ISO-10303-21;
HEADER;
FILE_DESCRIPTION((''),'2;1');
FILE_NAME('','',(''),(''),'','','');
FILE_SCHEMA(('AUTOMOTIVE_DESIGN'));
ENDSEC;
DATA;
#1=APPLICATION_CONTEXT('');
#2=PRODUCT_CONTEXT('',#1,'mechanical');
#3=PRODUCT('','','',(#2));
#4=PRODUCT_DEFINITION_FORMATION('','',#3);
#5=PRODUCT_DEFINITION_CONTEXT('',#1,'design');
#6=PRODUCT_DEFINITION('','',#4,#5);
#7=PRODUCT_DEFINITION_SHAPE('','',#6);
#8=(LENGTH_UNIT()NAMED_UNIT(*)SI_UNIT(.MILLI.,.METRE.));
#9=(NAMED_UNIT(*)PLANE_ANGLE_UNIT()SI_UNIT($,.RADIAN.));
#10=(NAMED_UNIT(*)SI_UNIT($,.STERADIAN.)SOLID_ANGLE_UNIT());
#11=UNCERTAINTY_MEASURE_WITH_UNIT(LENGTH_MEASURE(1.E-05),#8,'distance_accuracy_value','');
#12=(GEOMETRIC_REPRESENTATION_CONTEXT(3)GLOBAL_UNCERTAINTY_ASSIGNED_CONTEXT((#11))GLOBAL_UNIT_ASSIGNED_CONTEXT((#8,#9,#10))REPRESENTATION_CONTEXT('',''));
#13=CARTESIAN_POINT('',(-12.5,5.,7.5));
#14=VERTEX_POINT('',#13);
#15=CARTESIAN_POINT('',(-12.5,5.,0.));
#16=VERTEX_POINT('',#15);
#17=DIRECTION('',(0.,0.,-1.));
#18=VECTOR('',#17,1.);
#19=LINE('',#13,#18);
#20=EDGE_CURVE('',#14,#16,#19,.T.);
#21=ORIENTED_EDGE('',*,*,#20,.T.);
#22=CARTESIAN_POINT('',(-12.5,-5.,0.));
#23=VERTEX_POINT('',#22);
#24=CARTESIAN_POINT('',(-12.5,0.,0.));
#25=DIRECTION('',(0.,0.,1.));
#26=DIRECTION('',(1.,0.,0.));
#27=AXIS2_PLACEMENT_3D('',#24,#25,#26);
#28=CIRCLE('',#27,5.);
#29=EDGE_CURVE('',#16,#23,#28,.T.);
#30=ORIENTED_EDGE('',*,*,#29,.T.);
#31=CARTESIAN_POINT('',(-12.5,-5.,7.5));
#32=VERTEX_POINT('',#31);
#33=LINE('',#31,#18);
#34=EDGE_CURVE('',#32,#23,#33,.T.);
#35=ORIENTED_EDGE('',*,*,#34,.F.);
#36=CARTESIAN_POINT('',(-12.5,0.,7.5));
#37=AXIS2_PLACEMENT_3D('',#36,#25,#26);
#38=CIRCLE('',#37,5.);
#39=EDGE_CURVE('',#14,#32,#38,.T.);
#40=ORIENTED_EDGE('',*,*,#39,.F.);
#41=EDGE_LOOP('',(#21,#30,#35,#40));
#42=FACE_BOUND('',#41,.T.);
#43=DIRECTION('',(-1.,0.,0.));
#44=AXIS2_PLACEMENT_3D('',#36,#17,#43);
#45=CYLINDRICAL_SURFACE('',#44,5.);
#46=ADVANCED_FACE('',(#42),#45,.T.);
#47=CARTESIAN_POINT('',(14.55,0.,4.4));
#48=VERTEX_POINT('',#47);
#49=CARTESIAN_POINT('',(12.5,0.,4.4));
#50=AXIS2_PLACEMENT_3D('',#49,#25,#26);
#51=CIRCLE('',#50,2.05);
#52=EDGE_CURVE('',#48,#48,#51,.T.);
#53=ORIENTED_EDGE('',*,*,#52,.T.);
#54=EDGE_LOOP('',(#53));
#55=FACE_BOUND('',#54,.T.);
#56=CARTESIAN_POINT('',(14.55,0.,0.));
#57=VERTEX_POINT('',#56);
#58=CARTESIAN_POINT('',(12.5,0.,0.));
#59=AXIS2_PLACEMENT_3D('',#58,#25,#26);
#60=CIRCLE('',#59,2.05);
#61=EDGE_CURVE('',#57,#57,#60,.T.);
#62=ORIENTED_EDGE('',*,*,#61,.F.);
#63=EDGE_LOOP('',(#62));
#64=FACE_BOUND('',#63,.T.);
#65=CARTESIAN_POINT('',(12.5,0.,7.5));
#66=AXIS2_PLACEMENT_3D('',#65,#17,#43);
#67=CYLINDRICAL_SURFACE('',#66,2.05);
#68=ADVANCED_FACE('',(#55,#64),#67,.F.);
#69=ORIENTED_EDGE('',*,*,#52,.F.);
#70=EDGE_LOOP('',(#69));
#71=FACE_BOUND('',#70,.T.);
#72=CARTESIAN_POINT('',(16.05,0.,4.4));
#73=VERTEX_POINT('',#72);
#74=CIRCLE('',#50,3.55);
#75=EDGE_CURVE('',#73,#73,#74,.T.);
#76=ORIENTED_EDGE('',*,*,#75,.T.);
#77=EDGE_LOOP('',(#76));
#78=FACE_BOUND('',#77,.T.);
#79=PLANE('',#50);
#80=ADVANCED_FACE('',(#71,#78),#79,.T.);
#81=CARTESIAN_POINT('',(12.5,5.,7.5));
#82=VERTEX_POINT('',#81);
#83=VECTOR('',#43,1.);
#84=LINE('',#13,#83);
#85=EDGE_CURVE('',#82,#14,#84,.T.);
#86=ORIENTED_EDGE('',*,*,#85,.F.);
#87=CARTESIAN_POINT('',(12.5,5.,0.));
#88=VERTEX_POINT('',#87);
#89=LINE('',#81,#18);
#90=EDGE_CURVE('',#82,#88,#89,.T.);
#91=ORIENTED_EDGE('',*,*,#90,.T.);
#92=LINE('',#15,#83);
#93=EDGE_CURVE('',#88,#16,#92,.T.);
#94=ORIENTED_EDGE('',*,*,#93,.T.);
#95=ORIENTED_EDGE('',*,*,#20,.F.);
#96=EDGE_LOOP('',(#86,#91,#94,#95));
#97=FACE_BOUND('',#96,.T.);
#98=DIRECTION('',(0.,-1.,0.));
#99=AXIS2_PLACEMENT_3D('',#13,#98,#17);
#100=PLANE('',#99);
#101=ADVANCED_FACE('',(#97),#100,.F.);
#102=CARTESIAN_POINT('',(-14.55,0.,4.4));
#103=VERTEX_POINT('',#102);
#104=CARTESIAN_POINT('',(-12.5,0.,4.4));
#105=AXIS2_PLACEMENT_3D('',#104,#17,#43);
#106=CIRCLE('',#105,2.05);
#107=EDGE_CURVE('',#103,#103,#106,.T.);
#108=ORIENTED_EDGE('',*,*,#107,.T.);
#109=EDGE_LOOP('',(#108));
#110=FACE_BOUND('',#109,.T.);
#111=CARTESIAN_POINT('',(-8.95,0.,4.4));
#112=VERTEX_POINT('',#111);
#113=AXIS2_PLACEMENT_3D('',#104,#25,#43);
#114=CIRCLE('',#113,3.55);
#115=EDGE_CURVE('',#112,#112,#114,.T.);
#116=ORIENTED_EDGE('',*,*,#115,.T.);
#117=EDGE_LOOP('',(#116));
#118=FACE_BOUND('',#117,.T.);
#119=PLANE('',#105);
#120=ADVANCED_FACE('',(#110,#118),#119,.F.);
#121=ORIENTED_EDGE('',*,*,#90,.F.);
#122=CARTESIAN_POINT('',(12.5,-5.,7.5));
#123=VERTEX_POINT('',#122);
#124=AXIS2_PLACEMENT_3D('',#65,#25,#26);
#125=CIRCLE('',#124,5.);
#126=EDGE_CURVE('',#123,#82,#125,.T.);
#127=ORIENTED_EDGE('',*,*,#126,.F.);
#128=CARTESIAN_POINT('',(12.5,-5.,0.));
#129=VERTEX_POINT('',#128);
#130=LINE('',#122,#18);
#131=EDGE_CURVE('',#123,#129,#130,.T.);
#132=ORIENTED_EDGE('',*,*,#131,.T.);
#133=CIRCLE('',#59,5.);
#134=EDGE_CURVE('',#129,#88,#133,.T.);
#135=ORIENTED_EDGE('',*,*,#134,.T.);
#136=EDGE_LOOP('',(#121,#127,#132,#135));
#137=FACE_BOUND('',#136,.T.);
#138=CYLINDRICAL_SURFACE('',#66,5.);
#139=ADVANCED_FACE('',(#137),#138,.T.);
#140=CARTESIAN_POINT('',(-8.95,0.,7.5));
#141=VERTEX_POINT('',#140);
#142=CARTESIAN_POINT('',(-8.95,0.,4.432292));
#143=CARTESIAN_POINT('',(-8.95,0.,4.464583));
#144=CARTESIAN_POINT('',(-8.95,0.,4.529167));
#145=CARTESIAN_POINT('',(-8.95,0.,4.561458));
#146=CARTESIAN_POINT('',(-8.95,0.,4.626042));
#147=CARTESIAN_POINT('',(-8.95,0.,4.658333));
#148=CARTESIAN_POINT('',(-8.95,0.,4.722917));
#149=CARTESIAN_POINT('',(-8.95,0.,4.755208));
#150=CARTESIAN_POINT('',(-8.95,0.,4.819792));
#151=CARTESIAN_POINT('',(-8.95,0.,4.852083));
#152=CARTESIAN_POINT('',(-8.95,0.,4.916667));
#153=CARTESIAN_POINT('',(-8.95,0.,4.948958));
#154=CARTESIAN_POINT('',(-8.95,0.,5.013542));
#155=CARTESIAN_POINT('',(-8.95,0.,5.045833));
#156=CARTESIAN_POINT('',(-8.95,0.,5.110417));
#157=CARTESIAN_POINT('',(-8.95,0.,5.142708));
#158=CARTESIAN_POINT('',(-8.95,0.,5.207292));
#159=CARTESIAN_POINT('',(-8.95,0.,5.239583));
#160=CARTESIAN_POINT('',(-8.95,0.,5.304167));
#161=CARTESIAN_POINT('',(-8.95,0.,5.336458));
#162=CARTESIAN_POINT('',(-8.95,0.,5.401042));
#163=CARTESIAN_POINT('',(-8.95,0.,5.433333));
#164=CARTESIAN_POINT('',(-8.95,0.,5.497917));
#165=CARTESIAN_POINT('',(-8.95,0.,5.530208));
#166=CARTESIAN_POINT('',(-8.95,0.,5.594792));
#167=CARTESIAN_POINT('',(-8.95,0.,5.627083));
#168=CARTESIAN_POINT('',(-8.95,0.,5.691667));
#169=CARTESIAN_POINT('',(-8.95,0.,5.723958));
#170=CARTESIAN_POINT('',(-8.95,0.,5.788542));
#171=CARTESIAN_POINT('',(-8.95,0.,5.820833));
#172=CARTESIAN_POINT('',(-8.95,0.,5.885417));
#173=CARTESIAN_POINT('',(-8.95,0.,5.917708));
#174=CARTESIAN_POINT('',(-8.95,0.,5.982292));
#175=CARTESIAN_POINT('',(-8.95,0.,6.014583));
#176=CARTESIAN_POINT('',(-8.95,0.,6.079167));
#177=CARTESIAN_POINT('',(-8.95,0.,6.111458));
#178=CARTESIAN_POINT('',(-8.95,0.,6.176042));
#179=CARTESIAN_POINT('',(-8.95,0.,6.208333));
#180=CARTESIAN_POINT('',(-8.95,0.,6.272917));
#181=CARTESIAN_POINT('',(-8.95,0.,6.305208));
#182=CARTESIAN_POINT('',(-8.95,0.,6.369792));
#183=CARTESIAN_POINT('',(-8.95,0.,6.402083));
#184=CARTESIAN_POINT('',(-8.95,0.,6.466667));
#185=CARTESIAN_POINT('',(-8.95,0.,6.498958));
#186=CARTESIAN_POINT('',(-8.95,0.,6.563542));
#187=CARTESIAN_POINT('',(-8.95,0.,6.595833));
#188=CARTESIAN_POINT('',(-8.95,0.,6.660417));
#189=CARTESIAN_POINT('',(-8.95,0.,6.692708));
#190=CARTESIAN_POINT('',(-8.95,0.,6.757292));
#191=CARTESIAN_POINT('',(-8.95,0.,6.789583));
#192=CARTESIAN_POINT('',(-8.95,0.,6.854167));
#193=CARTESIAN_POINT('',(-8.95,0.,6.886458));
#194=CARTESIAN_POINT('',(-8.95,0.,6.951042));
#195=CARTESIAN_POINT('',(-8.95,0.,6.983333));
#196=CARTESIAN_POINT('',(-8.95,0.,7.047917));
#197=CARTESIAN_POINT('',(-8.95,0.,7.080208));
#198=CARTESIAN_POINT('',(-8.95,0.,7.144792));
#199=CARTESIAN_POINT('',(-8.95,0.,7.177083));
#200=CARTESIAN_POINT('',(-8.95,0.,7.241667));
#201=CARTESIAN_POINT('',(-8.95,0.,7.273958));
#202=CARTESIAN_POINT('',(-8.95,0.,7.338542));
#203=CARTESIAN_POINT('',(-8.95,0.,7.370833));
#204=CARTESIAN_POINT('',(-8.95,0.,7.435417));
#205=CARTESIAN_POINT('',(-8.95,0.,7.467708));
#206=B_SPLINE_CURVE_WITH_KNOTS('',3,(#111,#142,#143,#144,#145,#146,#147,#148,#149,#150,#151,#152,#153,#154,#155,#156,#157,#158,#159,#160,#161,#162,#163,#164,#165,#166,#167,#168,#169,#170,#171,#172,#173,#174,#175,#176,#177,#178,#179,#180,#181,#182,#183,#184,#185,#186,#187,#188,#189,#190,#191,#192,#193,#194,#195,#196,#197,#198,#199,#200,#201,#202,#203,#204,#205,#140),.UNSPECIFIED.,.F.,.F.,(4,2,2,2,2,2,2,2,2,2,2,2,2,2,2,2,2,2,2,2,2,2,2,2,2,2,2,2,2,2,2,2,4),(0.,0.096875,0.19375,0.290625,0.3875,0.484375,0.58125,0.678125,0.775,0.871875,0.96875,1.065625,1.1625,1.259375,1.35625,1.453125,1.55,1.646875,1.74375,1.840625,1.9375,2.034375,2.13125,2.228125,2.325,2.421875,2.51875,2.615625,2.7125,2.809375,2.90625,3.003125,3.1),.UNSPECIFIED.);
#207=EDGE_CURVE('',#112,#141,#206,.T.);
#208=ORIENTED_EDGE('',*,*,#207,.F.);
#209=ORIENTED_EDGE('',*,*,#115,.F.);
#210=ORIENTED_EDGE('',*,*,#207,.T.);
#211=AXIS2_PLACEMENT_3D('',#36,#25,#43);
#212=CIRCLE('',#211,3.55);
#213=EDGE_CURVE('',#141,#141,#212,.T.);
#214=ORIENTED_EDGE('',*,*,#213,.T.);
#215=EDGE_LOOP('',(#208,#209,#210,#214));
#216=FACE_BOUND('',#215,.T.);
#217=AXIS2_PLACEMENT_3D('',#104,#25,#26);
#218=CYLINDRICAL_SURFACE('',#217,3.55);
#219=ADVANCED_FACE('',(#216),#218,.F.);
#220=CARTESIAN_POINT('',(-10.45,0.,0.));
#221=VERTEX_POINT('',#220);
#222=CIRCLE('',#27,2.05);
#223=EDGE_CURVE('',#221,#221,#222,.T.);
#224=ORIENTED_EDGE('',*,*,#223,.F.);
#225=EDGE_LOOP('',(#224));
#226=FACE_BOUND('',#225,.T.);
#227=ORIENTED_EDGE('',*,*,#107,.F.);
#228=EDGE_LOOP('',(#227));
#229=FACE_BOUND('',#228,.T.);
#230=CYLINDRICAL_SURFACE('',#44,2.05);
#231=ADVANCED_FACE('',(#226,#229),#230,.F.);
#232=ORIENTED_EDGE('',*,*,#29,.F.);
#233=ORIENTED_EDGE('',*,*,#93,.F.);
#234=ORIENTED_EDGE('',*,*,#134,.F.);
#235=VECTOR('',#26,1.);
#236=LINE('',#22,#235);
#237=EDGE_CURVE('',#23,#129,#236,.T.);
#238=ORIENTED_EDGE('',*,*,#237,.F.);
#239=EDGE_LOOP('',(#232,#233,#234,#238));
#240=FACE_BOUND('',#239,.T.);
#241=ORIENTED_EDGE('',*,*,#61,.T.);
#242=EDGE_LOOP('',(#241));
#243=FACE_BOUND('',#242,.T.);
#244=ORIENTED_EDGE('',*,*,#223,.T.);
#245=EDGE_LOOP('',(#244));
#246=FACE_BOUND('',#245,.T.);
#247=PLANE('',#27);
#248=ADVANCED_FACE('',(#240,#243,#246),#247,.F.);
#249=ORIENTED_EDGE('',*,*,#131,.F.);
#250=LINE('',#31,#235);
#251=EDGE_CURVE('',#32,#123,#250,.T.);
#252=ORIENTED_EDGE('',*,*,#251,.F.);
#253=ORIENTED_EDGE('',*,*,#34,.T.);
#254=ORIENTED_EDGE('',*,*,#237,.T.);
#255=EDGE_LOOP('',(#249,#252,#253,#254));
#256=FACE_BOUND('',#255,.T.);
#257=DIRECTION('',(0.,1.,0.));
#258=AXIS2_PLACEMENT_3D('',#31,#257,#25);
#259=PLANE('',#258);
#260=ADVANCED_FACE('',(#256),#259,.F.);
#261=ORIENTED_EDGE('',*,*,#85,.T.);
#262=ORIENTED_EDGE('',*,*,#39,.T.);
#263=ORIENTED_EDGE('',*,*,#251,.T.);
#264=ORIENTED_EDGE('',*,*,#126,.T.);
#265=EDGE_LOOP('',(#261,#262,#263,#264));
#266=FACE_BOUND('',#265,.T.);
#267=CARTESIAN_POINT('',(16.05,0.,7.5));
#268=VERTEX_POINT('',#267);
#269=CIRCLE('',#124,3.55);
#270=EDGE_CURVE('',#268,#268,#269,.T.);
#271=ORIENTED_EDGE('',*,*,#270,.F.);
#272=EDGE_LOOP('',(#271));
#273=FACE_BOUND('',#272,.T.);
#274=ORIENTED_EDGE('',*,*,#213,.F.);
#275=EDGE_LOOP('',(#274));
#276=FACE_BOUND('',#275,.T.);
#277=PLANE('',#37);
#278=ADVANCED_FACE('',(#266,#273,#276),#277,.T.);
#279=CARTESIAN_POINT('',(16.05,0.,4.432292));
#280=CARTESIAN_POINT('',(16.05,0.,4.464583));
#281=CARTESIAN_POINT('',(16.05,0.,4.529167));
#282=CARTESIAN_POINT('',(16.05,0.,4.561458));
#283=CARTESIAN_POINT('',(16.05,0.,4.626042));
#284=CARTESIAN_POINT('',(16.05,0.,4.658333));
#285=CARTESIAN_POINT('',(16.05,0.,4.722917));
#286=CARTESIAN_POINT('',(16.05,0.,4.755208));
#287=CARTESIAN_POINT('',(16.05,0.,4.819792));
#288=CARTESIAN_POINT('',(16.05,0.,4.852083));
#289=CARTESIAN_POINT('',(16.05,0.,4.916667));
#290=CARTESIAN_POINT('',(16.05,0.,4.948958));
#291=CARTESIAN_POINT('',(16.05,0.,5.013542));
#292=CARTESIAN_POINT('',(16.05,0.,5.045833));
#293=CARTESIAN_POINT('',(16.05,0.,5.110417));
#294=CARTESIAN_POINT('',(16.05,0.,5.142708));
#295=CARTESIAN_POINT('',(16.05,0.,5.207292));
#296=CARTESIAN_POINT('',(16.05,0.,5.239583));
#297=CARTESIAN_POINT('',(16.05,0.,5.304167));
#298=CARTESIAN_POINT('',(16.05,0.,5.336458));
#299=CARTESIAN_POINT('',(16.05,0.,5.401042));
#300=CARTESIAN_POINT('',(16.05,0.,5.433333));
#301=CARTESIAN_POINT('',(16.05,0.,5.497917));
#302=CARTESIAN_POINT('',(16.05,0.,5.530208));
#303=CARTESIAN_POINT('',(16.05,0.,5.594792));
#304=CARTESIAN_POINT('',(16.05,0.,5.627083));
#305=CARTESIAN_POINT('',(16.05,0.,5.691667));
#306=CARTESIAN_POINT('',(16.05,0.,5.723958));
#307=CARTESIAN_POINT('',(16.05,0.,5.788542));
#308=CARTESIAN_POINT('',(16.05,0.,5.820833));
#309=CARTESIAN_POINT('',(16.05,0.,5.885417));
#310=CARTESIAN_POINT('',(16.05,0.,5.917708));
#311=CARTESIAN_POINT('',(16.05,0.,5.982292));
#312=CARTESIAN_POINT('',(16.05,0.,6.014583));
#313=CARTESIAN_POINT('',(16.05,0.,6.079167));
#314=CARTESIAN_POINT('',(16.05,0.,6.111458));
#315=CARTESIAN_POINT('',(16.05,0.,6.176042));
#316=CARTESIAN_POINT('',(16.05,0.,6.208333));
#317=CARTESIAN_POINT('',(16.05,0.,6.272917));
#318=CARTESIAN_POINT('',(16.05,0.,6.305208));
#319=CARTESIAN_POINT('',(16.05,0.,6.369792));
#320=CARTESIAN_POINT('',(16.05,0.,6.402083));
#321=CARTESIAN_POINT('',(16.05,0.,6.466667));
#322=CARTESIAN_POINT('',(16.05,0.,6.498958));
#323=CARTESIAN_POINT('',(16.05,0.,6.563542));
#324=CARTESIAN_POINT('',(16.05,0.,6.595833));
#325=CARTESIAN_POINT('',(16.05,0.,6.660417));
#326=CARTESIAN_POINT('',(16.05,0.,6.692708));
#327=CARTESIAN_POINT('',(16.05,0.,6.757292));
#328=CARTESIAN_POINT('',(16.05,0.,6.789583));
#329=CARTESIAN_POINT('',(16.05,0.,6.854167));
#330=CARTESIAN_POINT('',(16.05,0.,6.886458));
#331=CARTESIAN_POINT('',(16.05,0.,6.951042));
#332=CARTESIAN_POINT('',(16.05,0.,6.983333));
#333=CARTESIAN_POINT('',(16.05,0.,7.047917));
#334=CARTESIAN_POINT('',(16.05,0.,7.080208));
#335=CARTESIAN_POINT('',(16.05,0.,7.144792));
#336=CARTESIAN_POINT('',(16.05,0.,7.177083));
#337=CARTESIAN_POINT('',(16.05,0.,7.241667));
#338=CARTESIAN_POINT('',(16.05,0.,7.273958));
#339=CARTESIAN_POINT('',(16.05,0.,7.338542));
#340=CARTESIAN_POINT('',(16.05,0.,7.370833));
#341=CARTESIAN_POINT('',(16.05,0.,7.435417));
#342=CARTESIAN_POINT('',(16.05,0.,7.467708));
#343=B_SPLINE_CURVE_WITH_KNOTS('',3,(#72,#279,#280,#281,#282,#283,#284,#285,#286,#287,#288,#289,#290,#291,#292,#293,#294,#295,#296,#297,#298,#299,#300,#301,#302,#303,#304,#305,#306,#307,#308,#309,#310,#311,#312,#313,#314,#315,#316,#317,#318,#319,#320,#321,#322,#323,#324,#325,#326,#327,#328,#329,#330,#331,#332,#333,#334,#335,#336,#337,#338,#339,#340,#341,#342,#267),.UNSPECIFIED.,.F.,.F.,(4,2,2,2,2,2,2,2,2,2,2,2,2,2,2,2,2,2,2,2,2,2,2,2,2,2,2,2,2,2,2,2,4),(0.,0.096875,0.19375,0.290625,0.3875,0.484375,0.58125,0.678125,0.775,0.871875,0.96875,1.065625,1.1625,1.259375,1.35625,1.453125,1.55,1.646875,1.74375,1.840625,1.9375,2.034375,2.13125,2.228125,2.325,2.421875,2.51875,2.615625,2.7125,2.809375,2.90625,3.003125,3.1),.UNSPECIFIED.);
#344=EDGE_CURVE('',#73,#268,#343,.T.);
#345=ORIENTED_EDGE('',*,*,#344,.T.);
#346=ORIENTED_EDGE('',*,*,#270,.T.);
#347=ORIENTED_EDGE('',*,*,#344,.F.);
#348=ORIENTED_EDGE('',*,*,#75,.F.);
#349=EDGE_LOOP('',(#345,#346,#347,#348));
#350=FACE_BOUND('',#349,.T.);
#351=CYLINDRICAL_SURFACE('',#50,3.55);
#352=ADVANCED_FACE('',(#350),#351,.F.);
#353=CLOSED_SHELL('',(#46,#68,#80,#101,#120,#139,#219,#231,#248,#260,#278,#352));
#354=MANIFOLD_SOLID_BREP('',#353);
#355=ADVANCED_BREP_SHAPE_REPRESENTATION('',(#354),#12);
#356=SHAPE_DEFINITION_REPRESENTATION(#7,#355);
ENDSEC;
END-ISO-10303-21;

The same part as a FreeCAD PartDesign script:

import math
import FreeCAD as App
import Part
import Sketcher
Q = App.Units.Quantity

doc = App.newDocument("Part")
params = doc.addObject("Spreadsheet::Sheet", "Params")
for row, (alias, value) in enumerate([
    ("sketch1_radius", "5 mm"),
    ("sketch1_diameter", "4.1 mm"),
    ("sketch1_width", "25 mm"),
    ("pad1_length", "7.5 mm"),
    ("sketch2_diameter", "7.1 mm"),
    ("pocket1_length", "3.1 mm"),
], start=1):
    params.set(f"A{row}", alias)
    params.set(f"B{row}", "=" + value)
    params.setAlias(f"B{row}", alias)

body = doc.addObject("PartDesign::Body", "Body")

# Sketch on XY plane
sketch1 = body.newObject("Sketcher::SketchObject", "Sketch")
sketch1.AttachmentSupport = (doc.getObject("XY_Plane"), [""])
sketch1.MapMode = "FlatFace"
sketch1.addGeometry([
    Part.LineSegment(App.Vector(12.5, 5, 0), App.Vector(-12.5, 5, 0)),  # 0
    Part.ArcOfCircle(Part.Circle(App.Vector(-12.5, 0, 0), App.Vector(0, 0, 1), 5), math.radians(90), math.radians(270)),  # 1
    Part.LineSegment(App.Vector(-12.5, -5, 0), App.Vector(12.5, -5, 0)),  # 2
    Part.ArcOfCircle(Part.Circle(App.Vector(12.5, 0, 0), App.Vector(0, 0, 1), 5), math.radians(-90), math.radians(90)),  # 3
    Part.Circle(App.Vector(12.5, 0, 0), App.Vector(0, 0, 1), 2),  # 4
    Part.Circle(App.Vector(-12.5, 0, 0), App.Vector(0, 0, 1), 2),  # 5
], False)
sketch1.addConstraint([
    Sketcher.Constraint("Tangent", 0, 2, 1, 1),
    Sketcher.Constraint("Tangent", 1, 2, 2, 1),
    Sketcher.Constraint("Tangent", 2, 2, 3, 1),
    Sketcher.Constraint("Tangent", 3, 2, 0, 1),
    Sketcher.Constraint("Horizontal", 0),
    Sketcher.Constraint("Horizontal", 2),
    Sketcher.Constraint("Coincident", 4, 3, 3, 3),
    Sketcher.Constraint("Coincident", 5, 3, 1, 3),
    Sketcher.Constraint("Equal", 4, 5),
    Sketcher.Constraint("Symmetric", 1, 3, 3, 3, -1, 1),
    Sketcher.Constraint("Radius", 1, Q("5 mm")),
    Sketcher.Constraint("Diameter", 4, Q("4.1 mm")),
    Sketcher.Constraint("DistanceX", 0, 2, 0, 1, Q("25 mm")),
])
sketch1.setExpression("Constraints[10]", "Params.sketch1_radius")
sketch1.setExpression("Constraints[11]", "Params.sketch1_diameter")
sketch1.setExpression("Constraints[12]", "Params.sketch1_width")
pad1 = body.newObject("PartDesign::Pad", "Pad")
pad1.Profile = sketch1
pad1.setExpression("Length", "Params.pad1_length")

# Sketch on XY plane
sketch2 = body.newObject("Sketcher::SketchObject", "Sketch001")
sketch2.AttachmentSupport = (doc.getObject("XY_Plane"), [""])
sketch2.MapMode = "FlatFace"
sketch2.AttachmentOffset = App.Placement(App.Vector(0, 0, 7.5), App.Rotation())
sketch2.addGeometry([
    Part.Circle(App.Vector(12.5, 0, 0), App.Vector(0, 0, 1), 3.5),
    Part.Circle(App.Vector(-12.5, 0, 0), App.Vector(0, 0, 1), 3.5),
], False)
sketch2.addConstraint([
    Sketcher.Constraint("Equal", 0, 1),
    Sketcher.Constraint("Symmetric", 0, 3, 1, 3, -1, 1),
    Sketcher.Constraint("PointOnObject", 0, 3, -1),
    Sketcher.Constraint("Diameter", 0, Q("7.1 mm")),
    Sketcher.Constraint("DistanceX", 1, 3, 0, 3, Q("25 mm")),
])
sketch2.setExpression("Constraints[3]", "Params.sketch2_diameter")
pocket1 = body.newObject("PartDesign::Pocket", "Pocket")
pocket1.Profile = sketch2
pocket1.setExpression("Length", "Params.pocket1_length")

doc.recompute()
